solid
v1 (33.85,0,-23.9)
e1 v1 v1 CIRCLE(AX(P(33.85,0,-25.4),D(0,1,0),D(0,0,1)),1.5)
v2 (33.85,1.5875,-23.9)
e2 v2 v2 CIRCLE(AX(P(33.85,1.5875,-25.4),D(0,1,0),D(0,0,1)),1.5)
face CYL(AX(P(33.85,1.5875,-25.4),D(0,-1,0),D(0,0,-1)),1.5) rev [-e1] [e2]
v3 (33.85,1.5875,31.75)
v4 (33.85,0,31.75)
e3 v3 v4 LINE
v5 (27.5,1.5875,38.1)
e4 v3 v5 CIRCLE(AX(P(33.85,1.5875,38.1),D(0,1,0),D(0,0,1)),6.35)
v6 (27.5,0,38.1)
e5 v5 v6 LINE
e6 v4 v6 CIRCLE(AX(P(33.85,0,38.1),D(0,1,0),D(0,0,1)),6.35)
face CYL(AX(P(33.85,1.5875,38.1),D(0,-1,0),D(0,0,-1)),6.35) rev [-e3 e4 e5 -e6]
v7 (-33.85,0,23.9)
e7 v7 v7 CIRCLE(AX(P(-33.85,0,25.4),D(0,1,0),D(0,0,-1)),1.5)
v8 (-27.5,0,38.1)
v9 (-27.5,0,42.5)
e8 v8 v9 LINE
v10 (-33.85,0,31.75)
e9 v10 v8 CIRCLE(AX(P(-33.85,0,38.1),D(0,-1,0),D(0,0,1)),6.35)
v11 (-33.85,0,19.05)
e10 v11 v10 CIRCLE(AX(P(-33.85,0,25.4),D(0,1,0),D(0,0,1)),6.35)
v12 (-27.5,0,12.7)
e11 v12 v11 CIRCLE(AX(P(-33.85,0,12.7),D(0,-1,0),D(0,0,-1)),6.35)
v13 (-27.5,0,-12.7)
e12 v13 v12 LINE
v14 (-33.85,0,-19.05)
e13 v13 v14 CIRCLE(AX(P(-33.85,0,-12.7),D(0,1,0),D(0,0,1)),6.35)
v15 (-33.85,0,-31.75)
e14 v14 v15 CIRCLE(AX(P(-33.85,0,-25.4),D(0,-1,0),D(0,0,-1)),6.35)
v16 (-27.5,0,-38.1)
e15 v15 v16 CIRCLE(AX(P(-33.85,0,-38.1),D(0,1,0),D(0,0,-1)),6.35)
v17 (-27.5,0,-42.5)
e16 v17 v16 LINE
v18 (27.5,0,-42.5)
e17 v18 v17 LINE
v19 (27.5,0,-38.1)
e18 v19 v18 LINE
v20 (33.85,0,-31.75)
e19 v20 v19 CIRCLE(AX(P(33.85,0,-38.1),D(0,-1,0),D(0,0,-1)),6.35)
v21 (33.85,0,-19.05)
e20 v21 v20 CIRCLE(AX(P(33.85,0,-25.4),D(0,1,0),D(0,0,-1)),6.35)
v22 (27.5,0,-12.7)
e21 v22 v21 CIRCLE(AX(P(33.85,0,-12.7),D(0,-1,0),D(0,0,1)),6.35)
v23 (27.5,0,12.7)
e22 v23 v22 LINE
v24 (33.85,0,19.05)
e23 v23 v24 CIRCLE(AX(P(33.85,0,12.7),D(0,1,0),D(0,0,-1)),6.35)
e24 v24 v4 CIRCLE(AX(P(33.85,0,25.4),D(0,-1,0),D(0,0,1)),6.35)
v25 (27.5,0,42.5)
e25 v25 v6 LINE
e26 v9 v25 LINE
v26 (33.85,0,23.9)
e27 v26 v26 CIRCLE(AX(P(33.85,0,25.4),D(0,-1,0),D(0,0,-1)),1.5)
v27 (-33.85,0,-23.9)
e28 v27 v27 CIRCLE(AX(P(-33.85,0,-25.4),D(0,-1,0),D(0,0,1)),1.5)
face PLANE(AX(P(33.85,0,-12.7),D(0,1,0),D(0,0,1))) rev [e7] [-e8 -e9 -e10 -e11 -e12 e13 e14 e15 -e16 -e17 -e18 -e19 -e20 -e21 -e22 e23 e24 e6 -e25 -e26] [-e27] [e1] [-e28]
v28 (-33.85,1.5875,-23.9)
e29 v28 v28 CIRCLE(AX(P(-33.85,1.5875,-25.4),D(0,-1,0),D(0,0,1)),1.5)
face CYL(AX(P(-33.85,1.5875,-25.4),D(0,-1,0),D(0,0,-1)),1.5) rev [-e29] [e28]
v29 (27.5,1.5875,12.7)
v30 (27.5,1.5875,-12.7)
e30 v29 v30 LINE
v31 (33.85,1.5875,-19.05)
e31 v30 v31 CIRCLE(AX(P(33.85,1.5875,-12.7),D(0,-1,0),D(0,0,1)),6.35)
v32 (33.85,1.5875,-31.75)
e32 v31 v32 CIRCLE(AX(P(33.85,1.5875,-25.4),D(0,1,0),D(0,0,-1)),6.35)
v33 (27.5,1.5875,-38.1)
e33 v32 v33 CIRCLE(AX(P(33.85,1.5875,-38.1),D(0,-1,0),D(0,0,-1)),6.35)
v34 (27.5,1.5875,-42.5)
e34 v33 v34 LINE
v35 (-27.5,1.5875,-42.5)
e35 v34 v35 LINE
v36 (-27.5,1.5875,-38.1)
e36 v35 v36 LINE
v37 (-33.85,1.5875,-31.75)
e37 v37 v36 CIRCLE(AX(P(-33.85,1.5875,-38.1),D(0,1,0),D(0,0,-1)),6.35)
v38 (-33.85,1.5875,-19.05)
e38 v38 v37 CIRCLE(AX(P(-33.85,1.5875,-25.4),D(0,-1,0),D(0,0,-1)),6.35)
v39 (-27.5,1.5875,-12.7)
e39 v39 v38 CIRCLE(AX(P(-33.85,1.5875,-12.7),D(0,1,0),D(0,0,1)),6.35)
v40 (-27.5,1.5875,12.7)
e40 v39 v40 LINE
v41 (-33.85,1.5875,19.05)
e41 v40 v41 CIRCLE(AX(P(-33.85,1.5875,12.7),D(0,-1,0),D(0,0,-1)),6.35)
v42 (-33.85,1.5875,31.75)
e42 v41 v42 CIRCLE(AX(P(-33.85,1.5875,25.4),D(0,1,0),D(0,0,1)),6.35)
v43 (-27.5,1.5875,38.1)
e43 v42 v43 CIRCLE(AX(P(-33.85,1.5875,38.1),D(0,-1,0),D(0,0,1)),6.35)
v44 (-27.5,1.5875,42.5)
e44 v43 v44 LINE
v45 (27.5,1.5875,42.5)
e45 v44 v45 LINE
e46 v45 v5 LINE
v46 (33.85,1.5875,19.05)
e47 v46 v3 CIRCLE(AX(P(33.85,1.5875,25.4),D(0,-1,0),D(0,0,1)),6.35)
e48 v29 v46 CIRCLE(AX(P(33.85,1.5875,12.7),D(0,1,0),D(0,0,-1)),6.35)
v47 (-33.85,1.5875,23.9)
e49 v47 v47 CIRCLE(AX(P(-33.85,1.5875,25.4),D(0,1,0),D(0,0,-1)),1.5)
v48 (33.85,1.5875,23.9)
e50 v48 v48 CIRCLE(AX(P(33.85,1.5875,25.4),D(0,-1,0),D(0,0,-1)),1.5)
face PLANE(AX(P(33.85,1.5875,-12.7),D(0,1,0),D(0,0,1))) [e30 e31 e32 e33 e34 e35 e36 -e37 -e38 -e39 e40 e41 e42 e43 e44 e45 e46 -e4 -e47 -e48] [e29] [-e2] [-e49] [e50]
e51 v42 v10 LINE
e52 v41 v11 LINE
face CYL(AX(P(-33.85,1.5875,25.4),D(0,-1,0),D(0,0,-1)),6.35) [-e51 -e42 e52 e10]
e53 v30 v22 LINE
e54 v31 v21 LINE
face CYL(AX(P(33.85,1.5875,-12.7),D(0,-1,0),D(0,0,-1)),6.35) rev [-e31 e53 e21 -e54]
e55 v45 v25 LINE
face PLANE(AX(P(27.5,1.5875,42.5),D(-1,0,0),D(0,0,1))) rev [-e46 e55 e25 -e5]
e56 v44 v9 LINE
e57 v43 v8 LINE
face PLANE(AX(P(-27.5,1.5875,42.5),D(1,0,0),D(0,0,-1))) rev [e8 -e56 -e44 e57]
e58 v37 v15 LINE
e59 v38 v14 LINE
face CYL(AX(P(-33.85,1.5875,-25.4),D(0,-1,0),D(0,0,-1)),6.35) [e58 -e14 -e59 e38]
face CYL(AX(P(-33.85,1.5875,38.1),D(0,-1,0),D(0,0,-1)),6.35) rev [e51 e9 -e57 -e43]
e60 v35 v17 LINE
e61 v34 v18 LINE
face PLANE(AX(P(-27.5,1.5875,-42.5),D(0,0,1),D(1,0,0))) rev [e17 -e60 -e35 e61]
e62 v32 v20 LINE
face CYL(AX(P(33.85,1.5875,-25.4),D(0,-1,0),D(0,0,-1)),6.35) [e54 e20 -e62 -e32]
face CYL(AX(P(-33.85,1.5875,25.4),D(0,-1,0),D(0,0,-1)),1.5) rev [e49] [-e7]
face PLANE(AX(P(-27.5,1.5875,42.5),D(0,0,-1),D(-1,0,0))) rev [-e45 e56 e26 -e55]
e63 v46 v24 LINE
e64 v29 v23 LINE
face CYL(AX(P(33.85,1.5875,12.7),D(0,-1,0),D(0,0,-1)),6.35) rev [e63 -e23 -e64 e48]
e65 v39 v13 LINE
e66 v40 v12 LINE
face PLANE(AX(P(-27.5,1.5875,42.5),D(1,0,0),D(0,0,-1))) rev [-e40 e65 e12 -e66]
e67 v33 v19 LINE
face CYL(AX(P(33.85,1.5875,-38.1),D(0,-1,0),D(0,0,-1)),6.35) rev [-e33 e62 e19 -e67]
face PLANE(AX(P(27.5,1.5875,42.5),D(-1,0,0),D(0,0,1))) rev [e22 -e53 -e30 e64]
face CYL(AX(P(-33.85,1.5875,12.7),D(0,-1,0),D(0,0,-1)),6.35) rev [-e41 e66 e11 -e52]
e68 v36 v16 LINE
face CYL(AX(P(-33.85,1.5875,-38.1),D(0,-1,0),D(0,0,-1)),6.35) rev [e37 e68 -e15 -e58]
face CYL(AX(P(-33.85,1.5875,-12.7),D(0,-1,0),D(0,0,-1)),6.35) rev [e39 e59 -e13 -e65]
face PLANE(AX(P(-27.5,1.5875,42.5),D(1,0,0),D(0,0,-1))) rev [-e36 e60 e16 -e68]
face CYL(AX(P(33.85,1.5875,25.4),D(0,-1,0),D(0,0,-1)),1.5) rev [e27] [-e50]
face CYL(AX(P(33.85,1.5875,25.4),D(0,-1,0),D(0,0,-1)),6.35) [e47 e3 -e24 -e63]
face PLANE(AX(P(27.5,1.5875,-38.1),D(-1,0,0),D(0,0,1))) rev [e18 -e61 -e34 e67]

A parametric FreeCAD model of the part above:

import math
import FreeCAD as App
import Part
import Sketcher

V = App.Vector

doc = App.newDocument("Part")
body = doc.addObject("PartDesign::Body", "Body")

# Sketch on XZ plane
sketch1 = body.newObject("Sketcher::SketchObject", "Sketch")
sketch1.AttachmentSupport = (doc.getObject("XZ_Plane"), [""])
sketch1.MapMode = "FlatFace"
sketch1.addGeometry(Part.LineSegment(V(-27.5, 42.5, 0), V(27.5, 42.5, 0)), False)
sketch1.addGeometry(Part.LineSegment(V(27.5, 42.5, 0), V(27.5, -12.7, 0)), False)
sketch1.addGeometry(Part.ArcOfCircle(Part.Circle(V(33.85, -12.7, 0), V(0, 0, 1), 6.35), math.radians(180), math.radians(270)), False)
sketch1.addGeometry(Part.ArcOfCircle(Part.Circle(V(33.85, -25.4, 0), V(0, 0, 1), 6.35), math.radians(-90), math.radians(90)), False)
sketch1.addGeometry(Part.ArcOfCircle(Part.Circle(V(33.85, -38.1, 0), V(0, 0, 1), 6.35), math.radians(90), math.radians(180)), False)
sketch1.addGeometry(Part.LineSegment(V(27.5, -38.1, 0), V(27.5, -42.5, 0)), False)
sketch1.addGeometry(Part.LineSegment(V(27.5, -42.5, 0), V(-27.5, -42.5, 0)), False)
sketch1.addGeometry(Part.LineSegment(V(-27.5, -42.5, 0), V(-27.5, 42.5, 0)), False)
sketch1.addGeometry(Part.Circle(V(33.85, -25.4, 0), V(0, 0, 1), 1.5), False)
sketch1.addConstraint(Sketcher.Constraint("Coincident", 0, 2, 1, 1))
sketch1.addConstraint(Sketcher.Constraint("Tangent", 1, 2, 2, 1))
sketch1.addConstraint(Sketcher.Constraint("Tangent", 2, 2, 3, 2))
sketch1.addConstraint(Sketcher.Constraint("Tangent", 3, 1, 4, 1))
sketch1.addConstraint(Sketcher.Constraint("Tangent", 4, 2, 5, 1))
sketch1.addConstraint(Sketcher.Constraint("Coincident", 5, 2, 6, 1))
sketch1.addConstraint(Sketcher.Constraint("Coincident", 6, 2, 7, 1))
sketch1.addConstraint(Sketcher.Constraint("Coincident", 7, 2, 0, 1))
sketch1.addConstraint(Sketcher.Constraint("Horizontal", 0))
sketch1.addConstraint(Sketcher.Constraint("Vertical", 1))
sketch1.addConstraint(Sketcher.Constraint("Vertical", 5))
sketch1.addConstraint(Sketcher.Constraint("Horizontal", 6))
sketch1.addConstraint(Sketcher.Constraint("Vertical", 7))
sketch1.addConstraint(Sketcher.Constraint("Coincident", 8, 3, 3, 3))
sketch1.addConstraint(Sketcher.Constraint("Equal", 2, 3))
sketch1.addConstraint(Sketcher.Constraint("Equal", 3, 4))
sketch1.addConstraint(Sketcher.Constraint("Symmetric", 0, 2, 6, 2, -1, 1))
sketch1.addConstraint(Sketcher.Constraint("Vertical", 2, 3, 3, 3))
sketch1.addConstraint(Sketcher.Constraint("Vertical", 3, 3, 4, 3))
sketch1.addConstraint(Sketcher.Constraint("Diameter", 8, 3.0))
sketch1.addConstraint(Sketcher.Constraint("DistanceX", 0, 1, 0, 2, 55.0))
sketch1.addConstraint(Sketcher.Constraint("DistanceY", 7, 1, 7, 2, 85.0))
sketch1.addConstraint(Sketcher.Constraint("Radius", 2, 6.35))
sketch1.addConstraint(Sketcher.Constraint("DistanceY", 1, 2, 1, 1, 55.2))
pad1 = body.newObject("PartDesign::Pad", "Pad")
pad1.Profile = sketch1
pad1.Length = 1.5875
pad1.Reversed = True
doc.recompute()

mirrored = body.newObject("PartDesign::Mirrored", "Mirrored")
mirrored.Originals = [pad1]
mirrored.MirrorPlane = (doc.getObject("XY_Plane"), [""])
body.Tip = mirrored
doc.recompute()

mirrored2 = body.newObject("PartDesign::Mirrored", "Mirrored001")
mirrored2.Originals = [pad1]
mirrored2.MirrorPlane = (doc.getObject("YZ_Plane"), [""])
body.Tip = mirrored2

# Sketch on XZ plane
sketch2 = body.newObject("Sketcher::SketchObject", "Sketch001")
sketch2.AttachmentSupport = (doc.getObject("XZ_Plane"), [""])
sketch2.MapMode = "FlatFace"
sketch2.addGeometry(Part.LineSegment(V(27.5, -42.5, 0), V(-27.5, -42.5, 0)), False)
sketch2.addGeometry(Part.LineSegment(V(-27.5, -42.5, 0), V(-27.5, 12.7, 0)), False)
sketch2.addGeometry(Part.ArcOfCircle(Part.Circle(V(-33.85, 12.7, 0), V(0, 0, 1), 6.35), math.radians(0), math.radians(90)), False)
sketch2.addGeometry(Part.ArcOfCircle(Part.Circle(V(-33.85, 25.4, 0), V(0, 0, 1), 6.35), math.radians(90), math.radians(270)), False)
sketch2.addGeometry(Part.ArcOfCircle(Part.Circle(V(-33.85, 38.1, 0), V(0, 0, 1), 6.35), math.radians(-90), math.radians(0)), False)
sketch2.addGeometry(Part.LineSegment(V(-27.5, 38.1, 0), V(-27.5, 42.5, 0)), False)
sketch2.addGeometry(Part.LineSegment(V(-27.5, 42.5, 0), V(27.5, 42.5, 0)), False)
sketch2.addGeometry(Part.LineSegment(V(27.5, 42.5, 0), V(27.5, -42.5, 0)), False)
sketch2.addGeometry(Part.Circle(V(-33.85, 25.4, 0), V(0, 0, 1), 1.5), False)
sketch2.addConstraint(Sketcher.Constraint("Coincident", 0, 2, 1, 1))
sketch2.addConstraint(Sketcher.Constraint("Tangent", 1, 2, 2, 1))
sketch2.addConstraint(Sketcher.Constraint("Tangent", 2, 2, 3, 2))
sketch2.addConstraint(Sketcher.Constraint("Tangent", 3, 1, 4, 1))
sketch2.addConstraint(Sketcher.Constraint("Tangent", 4, 2, 5, 1))
sketch2.addConstraint(Sketcher.Constraint("Coincident", 5, 2, 6, 1))
sketch2.addConstraint(Sketcher.Constraint("Coincident", 6, 2, 7, 1))
sketch2.addConstraint(Sketcher.Constraint("Coincident", 7, 2, 0, 1))
sketch2.addConstraint(Sketcher.Constraint("Horizontal", 0))
sketch2.addConstraint(Sketcher.Constraint("Vertical", 1))
sketch2.addConstraint(Sketcher.Constraint("Vertical", 5))
sketch2.addConstraint(Sketcher.Constraint("Horizontal", 6))
sketch2.addConstraint(Sketcher.Constraint("Vertical", 7))
sketch2.addConstraint(Sketcher.Constraint("Coincident", 8, 3, 3, 3))
sketch2.addConstraint(Sketcher.Constraint("Equal", 2, 3))
sketch2.addConstraint(Sketcher.Constraint("Equal", 3, 4))
sketch2.addConstraint(Sketcher.Constraint("Symmetric", 0, 2, 6, 2, -1, 1))
sketch2.addConstraint(Sketcher.Constraint("Vertical", 2, 3, 3, 3))
sketch2.addConstraint(Sketcher.Constraint("Vertical", 3, 3, 4, 3))
sketch2.addConstraint(Sketcher.Constraint("Diameter", 8, 3.0))
sketch2.addConstraint(Sketcher.Constraint("DistanceX", 0, 2, 0, 1, 55.0))
sketch2.addConstraint(Sketcher.Constraint("DistanceY", 7, 2, 7, 1, 85.0))
sketch2.addConstraint(Sketcher.Constraint("Radius", 2, 6.35))
sketch2.addConstraint(Sketcher.Constraint("DistanceY", 1, 1, 1, 2, 55.2))
pad2 = body.newObject("PartDesign::Pad", "Pad001")
pad2.Profile = sketch2
pad2.Length = 1.5875
pad2.Reversed = True

doc.recompute()
